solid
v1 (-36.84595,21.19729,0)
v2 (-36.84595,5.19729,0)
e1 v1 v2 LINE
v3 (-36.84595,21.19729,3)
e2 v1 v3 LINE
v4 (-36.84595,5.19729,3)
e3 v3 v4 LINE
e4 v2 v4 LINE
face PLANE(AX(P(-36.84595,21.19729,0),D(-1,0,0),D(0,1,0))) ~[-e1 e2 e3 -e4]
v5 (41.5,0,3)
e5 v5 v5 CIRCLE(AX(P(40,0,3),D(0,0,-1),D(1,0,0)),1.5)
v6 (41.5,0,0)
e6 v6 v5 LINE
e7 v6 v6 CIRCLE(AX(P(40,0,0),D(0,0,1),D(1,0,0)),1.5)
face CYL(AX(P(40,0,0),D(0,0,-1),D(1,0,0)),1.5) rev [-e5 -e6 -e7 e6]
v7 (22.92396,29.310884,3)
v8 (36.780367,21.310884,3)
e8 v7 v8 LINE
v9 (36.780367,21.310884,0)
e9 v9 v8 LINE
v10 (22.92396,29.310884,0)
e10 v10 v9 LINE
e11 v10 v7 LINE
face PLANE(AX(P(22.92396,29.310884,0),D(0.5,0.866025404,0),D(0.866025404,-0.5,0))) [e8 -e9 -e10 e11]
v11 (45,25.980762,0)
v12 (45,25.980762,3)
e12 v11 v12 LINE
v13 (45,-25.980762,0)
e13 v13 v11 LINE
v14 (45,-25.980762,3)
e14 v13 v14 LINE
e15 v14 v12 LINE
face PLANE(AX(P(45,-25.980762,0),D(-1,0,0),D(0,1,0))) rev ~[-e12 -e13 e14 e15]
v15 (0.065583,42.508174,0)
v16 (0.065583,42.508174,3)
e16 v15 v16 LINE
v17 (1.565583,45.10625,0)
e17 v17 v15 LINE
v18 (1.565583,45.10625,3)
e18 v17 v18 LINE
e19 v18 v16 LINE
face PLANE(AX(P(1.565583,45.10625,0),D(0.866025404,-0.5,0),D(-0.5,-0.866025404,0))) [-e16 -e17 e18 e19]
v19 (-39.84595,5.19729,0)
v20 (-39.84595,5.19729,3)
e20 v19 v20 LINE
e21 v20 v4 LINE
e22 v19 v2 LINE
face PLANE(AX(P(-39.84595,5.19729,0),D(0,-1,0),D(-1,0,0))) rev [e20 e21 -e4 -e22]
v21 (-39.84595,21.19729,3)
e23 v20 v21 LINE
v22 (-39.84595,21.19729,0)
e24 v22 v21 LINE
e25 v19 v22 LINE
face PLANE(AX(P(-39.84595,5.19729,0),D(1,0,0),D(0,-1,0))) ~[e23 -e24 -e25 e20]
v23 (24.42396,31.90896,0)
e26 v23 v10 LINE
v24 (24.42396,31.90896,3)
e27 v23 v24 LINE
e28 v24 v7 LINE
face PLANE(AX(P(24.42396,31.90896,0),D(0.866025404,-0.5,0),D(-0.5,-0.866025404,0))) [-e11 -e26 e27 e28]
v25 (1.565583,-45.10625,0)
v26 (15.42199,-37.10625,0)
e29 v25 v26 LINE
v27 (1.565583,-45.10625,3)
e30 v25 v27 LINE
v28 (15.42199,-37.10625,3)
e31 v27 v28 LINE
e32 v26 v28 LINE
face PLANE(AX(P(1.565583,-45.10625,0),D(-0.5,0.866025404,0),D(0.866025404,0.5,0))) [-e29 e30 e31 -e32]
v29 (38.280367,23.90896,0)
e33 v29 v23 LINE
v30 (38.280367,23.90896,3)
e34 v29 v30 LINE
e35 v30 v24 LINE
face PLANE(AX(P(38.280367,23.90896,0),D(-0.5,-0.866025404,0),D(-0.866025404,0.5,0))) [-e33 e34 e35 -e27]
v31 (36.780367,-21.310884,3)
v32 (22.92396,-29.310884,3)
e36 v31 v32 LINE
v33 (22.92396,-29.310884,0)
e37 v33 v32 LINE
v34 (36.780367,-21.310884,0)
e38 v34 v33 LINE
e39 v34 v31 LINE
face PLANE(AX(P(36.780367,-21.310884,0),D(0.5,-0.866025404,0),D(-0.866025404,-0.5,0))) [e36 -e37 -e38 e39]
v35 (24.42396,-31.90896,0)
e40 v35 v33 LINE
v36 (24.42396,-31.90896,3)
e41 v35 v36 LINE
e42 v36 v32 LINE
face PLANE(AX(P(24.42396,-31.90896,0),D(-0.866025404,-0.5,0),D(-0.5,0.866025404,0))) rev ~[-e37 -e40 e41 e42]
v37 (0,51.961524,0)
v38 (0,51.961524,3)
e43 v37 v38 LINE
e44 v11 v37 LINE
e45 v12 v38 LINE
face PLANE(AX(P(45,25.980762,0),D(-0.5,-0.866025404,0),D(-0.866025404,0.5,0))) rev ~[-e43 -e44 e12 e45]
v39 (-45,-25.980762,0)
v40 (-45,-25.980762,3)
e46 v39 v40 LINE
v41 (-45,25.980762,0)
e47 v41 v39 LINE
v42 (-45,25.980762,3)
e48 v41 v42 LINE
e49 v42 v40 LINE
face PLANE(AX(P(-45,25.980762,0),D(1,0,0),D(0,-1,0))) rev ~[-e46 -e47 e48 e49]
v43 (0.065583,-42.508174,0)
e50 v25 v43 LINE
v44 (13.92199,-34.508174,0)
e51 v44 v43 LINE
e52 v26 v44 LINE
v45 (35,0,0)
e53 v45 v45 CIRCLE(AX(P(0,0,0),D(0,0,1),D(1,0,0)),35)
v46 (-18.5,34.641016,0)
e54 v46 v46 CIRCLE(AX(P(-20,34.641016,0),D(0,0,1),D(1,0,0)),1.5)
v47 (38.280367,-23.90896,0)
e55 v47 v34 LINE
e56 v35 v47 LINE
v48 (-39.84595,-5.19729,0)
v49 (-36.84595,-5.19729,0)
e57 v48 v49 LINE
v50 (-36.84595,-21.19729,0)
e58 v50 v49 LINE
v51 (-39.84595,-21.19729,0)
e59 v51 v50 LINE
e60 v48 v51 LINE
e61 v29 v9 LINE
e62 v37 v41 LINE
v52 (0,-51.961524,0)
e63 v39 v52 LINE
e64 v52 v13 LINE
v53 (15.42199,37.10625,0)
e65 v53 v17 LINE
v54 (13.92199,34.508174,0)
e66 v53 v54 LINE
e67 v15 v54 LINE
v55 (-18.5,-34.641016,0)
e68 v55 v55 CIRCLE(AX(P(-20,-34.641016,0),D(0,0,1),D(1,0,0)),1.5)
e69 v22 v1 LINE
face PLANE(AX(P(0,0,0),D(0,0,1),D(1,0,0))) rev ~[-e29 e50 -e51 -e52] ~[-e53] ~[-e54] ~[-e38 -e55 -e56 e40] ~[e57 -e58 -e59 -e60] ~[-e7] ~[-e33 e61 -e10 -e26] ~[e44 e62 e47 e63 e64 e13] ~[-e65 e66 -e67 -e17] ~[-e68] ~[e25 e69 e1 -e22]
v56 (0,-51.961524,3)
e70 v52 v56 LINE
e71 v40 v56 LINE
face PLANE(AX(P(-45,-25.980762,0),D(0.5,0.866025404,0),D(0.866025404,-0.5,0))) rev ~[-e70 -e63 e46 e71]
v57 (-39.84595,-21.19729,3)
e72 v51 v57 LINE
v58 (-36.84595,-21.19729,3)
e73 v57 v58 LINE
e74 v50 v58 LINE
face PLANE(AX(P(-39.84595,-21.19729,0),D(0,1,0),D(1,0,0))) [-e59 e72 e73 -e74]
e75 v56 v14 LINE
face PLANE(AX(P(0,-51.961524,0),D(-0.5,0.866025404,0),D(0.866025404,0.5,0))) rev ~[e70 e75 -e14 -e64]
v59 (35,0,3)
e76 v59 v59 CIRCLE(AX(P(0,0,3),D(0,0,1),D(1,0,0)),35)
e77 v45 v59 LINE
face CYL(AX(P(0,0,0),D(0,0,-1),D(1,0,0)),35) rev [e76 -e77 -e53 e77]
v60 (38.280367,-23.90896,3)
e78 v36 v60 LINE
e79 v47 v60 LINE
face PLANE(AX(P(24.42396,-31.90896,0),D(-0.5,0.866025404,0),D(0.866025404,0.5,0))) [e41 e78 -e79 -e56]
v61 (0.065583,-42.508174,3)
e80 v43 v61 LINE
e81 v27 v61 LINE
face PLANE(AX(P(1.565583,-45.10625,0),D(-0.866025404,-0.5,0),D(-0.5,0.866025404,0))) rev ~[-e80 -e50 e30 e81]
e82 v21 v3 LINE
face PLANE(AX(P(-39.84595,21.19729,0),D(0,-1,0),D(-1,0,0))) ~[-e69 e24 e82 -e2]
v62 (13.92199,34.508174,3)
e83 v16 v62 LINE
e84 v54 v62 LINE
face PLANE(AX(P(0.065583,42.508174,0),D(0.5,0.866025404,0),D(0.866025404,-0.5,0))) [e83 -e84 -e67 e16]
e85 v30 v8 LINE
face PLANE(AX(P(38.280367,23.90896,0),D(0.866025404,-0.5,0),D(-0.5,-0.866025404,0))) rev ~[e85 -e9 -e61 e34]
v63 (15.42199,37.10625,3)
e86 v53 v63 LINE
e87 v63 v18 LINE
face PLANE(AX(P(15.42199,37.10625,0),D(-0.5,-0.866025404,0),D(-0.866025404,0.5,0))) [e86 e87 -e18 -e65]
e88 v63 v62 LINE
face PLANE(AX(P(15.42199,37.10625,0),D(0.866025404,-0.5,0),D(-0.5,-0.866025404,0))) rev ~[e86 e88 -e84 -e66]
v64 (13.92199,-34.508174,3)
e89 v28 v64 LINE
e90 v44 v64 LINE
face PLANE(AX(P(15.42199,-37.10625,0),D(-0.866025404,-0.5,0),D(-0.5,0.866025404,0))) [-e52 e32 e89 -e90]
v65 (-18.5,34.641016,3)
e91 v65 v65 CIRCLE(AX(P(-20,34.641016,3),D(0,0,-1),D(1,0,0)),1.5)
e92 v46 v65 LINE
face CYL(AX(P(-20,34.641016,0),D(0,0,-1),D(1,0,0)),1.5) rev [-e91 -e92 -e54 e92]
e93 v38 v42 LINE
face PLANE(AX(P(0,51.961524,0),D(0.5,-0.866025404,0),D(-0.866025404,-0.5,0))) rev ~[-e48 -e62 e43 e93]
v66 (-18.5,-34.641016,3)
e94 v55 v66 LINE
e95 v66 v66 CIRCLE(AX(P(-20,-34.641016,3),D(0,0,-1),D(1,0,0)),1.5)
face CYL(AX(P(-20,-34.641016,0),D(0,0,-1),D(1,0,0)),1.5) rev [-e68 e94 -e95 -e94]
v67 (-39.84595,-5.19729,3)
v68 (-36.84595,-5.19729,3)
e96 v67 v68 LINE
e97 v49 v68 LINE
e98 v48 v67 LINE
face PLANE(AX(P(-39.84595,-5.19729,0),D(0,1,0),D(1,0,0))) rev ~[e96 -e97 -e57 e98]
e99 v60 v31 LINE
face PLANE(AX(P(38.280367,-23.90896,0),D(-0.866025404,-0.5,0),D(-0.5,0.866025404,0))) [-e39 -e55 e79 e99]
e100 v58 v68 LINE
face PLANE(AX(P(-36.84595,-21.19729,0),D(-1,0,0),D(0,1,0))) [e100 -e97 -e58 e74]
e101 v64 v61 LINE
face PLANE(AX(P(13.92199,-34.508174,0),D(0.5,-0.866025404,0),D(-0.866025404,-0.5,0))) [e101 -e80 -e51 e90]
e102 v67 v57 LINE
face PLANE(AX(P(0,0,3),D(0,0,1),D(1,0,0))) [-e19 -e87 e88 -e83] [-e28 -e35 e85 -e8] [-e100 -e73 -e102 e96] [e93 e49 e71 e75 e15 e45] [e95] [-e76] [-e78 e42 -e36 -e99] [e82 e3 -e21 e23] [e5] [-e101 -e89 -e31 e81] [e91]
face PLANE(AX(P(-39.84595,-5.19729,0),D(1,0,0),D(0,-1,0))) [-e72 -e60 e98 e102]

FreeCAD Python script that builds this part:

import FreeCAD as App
import Part
import Sketcher
Q = App.Units.Quantity


def add_polygon(sketch, points):
    """Adds a closed chain of lines whose ends are joined by coincident constraints."""
    first, n = sketch.GeometryCount, len(points)
    for a, b in zip(points, points[1:] + points[:1]):
        sketch.addGeometry(Part.LineSegment(App.Vector(*a, 0), App.Vector(*b, 0)), False)
    for i in range(n):
        sketch.addConstraint(Sketcher.Constraint("Coincident", first + i, 2, first + (i + 1) % n, 1))

doc = App.newDocument("Part")
body = doc.addObject("PartDesign::Body", "Body")

# Sketch on XY plane
sketch1 = doc.addObject("Sketcher::SketchObject", "Sketch")
body.addObject(sketch1)
sketch1.AttachmentSupport = (doc.XY_Plane, [""])
sketch1.MapMode = "FlatFace"
add_polygon(sketch1, [(0, 52), (-45, 26), (-45, -26), (0, -52), (45, -26), (45, 26)])  # lines 0-5
sketch1.addGeometry(Part.Circle(App.Vector(0, 0, 0), App.Vector(0, 0, 1), 35), False)  # 6
sketch1.addConstraint([
    Sketcher.Constraint("Vertical", 1),
    Sketcher.Constraint("Vertical", 4),
    Sketcher.Constraint("Coincident", 6, 3, -1, 1),
    Sketcher.Constraint("Symmetric", 0, 2, 3, 2, -1, 1),
    Sketcher.Constraint("Symmetric", 2, 2, 5, 2, -1, 1),
    Sketcher.Constraint("PointOnObject", 2, 2, -2),
    Sketcher.Constraint("Parallel", 2, 5),
    Sketcher.Constraint("Horizontal", 1, 2, 3, 2),
    Sketcher.Constraint("Diameter", 6, Q("70 mm")),
    Sketcher.Constraint("Angle", 0, Q("-150 deg")),
    Sketcher.Constraint("DistanceX", 0, 2, -1, 1, Q("45 mm")),
    Sketcher.Constraint("DistanceY", 1, 2, 1, 1, Q("51.961524 mm")),
])
pad1 = doc.addObject("PartDesign::Pad", "Pad")
body.addObject(pad1)
pad1.Profile = sketch1
pad1.Length = 3

# Sketch on XY plane
sketch2 = doc.addObject("Sketcher::SketchObject", "Sketch001")
body.addObject(sketch2)
sketch2.AttachmentSupport = (doc.XY_Plane, [""])
sketch2.MapMode = "FlatFace"
add_polygon(sketch2, [(-39.8, -21.2), (-36.8, -21.2), (-36.8, -5.2), (-39.8, -5.2)])  # lines 0-3
sketch2.addConstraint([
    Sketcher.Constraint("Horizontal", 0),
    Sketcher.Constraint("Vertical", 1),
    Sketcher.Constraint("Horizontal", 2),
    Sketcher.Constraint("Vertical", 3),
    Sketcher.Constraint("DistanceX", 0, 1, 0, 2, Q("3 mm")),
    Sketcher.Constraint("DistanceY", 1, 1, 1, 2, Q("16 mm")),
    Sketcher.Constraint("DistanceX", 0, 2, -1, 1, Q("36.84595 mm")),
    Sketcher.Constraint("DistanceY", 0, 2, -1, 1, Q("21.19729 mm")),
])
pocket1 = doc.addObject("PartDesign::Pocket", "Pocket")
body.addObject(pocket1)
pocket1.Profile = sketch2
pocket1.Length = 3
pocket1.Reversed = True
doc.recompute()

mirrored = doc.addObject("PartDesign::Mirrored", "Mirrored")
body.addObject(mirrored)
mirrored.Originals = [pocket1]
mirrored.MirrorPlane = (doc.XZ_Plane, [""])
body.Tip = mirrored
doc.recompute()

polarpattern = doc.addObject("PartDesign::PolarPattern", "PolarPattern")
body.addObject(polarpattern)
polarpattern.Originals = [pocket1]
polarpattern.Axis = (doc.Z_Axis, [""])
polarpattern.Angle = 360
polarpattern.Occurrences = 3
body.Tip = polarpattern

# Sketch on XY plane
sketch3 = doc.addObject("Sketcher::SketchObject", "Sketch002")
body.addObject(sketch3)
sketch3.AttachmentSupport = (doc.XY_Plane, [""])
sketch3.MapMode = "FlatFace"
add_polygon(sketch3, [(1.6, -45.1), (15.4, -37.1), (13.9, -34.5), (0.1, -42.5)])  # lines 0-3
sketch3.addConstraint([
    Sketcher.Constraint("Perpendicular", 0, 1),
    Sketcher.Constraint("Perpendicular", 1, 2),
    Sketcher.Constraint("Perpendicular", 2, 3),
    Sketcher.Constraint("Angle", 0, Q("30 deg")),
    Sketcher.Constraint("Distance", 0, Q("16 mm")),
    Sketcher.Constraint("Distance", 1, Q("3 mm")),
    Sketcher.Constraint("DistanceX", -1, 1, 0, 2, Q("15.42199 mm")),
    Sketcher.Constraint("DistanceY", 0, 2, -1, 1, Q("37.10625 mm")),
])
pocket2 = doc.addObject("PartDesign::Pocket", "Pocket001")
body.addObject(pocket2)
pocket2.Profile = sketch3
pocket2.Length = 3
pocket2.Reversed = True

# Sketch on XY plane
sketch4 = doc.addObject("Sketcher::SketchObject", "Sketch003")
body.addObject(sketch4)
sketch4.AttachmentSupport = (doc.XY_Plane, [""])
sketch4.MapMode = "FlatFace"
add_polygon(sketch4, [(38.3, 23.9), (24.4, 31.9), (22.9, 29.3), (36.8, 21.3)])  # lines 0-3
sketch4.addConstraint([
    Sketcher.Constraint("Perpendicular", 0, 1),
    Sketcher.Constraint("Perpendicular", 1, 2),
    Sketcher.Constraint("Perpendicular", 2, 3),
    Sketcher.Constraint("Angle", 0, Q("150 deg")),
    Sketcher.Constraint("Distance", 0, Q("16 mm")),
    Sketcher.Constraint("Distance", 1, Q("3 mm")),
    Sketcher.Constraint("DistanceX", -1, 1, 0, 2, Q("24.42396 mm")),
    Sketcher.Constraint("DistanceY", -1, 1, 0, 2, Q("31.90896 mm")),
])
pocket3 = doc.addObject("PartDesign::Pocket", "Pocket002")
body.addObject(pocket3)
pocket3.Profile = sketch4
pocket3.Length = 3
pocket3.Reversed = True

# Sketch on XY plane
sketch5 = doc.addObject("Sketcher::SketchObject", "Sketch004")
body.addObject(sketch5)
sketch5.AttachmentSupport = (doc.XY_Plane, [""])
sketch5.MapMode = "FlatFace"
sketch5.addGeometry([
    Part.Circle(App.Vector(40, 0, 0), App.Vector(0, 0, 1), 1.5),
    Part.Circle(App.Vector(-20, -34.6, 0), App.Vector(0, 0, 1), 1.5),
    Part.Circle(App.Vector(-20, 34.6, 0), App.Vector(0, 0, 1), 1.5),
], False)
sketch5.addConstraint([
    Sketcher.Constraint("Equal", 0, 1),
    Sketcher.Constraint("Equal", 1, 2),
    Sketcher.Constraint("Symmetric", 1, 3, 2, 3, -1),
    Sketcher.Constraint("PointOnObject", 0, 3, -1),
    Sketcher.Constraint("Diameter", 0, Q("3 mm")),
    Sketcher.Constraint("DistanceX", -1, 1, 0, 3, Q("40 mm")),
    Sketcher.Constraint("DistanceX", 1, 3, -1, 1, Q("20 mm")),
    Sketcher.Constraint("DistanceY", 1, 3, -1, 1, Q("34.641016 mm")),
])
pocket4 = doc.addObject("PartDesign::Pocket", "Pocket003")
body.addObject(pocket4)
pocket4.Profile = sketch5
pocket4.Length = 10
pocket4.Reversed = True

doc.recompute()
